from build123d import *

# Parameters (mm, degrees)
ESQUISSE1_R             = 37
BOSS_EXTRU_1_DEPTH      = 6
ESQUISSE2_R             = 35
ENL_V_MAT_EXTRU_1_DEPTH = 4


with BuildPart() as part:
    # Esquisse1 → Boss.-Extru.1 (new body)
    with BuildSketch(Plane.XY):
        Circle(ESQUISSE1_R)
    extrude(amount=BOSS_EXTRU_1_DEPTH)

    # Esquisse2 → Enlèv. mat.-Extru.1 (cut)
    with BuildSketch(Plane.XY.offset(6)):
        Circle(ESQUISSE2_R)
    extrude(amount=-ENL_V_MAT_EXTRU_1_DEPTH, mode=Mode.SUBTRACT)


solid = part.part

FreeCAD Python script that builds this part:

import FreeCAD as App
import Part
import Sketcher
Q = App.Units.Quantity

doc = App.newDocument("Part")
body = doc.addObject("PartDesign::Body", "Body")

# Sketch on XY plane
sketch1 = body.newObject("Sketcher::SketchObject", "Sketch")
sketch1.AttachmentSupport = (doc.getObject("XY_Plane"), [""])
sketch1.MapMode = "FlatFace"
sketch1.addGeometry(Part.Circle(App.Vector(0, 0, 0), App.Vector(0, 0, 1), 37), False)
sketch1.addConstraint([
    Sketcher.Constraint("Coincident", 0, 3, -1, 1),
    Sketcher.Constraint("Diameter", 0, Q("74 mm")),
])
pad1 = body.newObject("PartDesign::Pad", "Pad")
pad1.Profile = sketch1
pad1.Length = 6

# Sketch on XY plane
sketch2 = body.newObject("Sketcher::SketchObject", "Sketch001")
sketch2.AttachmentSupport = (doc.getObject("XY_Plane"), [""])
sketch2.MapMode = "FlatFace"
sketch2.AttachmentOffset = App.Placement(App.Vector(0, 0, 6), App.Rotation())
sketch2.addGeometry(Part.Circle(App.Vector(0, 0, 0), App.Vector(0, 0, 1), 35), False)
sketch2.addConstraint([
    Sketcher.Constraint("Coincident", 0, 3, -1, 1),
    Sketcher.Constraint("Diameter", 0, Q("70 mm")),
])
pocket1 = body.newObject("PartDesign::Pocket", "Pocket")
pocket1.Profile = sketch2
pocket1.Length = 4

doc.recompute()
